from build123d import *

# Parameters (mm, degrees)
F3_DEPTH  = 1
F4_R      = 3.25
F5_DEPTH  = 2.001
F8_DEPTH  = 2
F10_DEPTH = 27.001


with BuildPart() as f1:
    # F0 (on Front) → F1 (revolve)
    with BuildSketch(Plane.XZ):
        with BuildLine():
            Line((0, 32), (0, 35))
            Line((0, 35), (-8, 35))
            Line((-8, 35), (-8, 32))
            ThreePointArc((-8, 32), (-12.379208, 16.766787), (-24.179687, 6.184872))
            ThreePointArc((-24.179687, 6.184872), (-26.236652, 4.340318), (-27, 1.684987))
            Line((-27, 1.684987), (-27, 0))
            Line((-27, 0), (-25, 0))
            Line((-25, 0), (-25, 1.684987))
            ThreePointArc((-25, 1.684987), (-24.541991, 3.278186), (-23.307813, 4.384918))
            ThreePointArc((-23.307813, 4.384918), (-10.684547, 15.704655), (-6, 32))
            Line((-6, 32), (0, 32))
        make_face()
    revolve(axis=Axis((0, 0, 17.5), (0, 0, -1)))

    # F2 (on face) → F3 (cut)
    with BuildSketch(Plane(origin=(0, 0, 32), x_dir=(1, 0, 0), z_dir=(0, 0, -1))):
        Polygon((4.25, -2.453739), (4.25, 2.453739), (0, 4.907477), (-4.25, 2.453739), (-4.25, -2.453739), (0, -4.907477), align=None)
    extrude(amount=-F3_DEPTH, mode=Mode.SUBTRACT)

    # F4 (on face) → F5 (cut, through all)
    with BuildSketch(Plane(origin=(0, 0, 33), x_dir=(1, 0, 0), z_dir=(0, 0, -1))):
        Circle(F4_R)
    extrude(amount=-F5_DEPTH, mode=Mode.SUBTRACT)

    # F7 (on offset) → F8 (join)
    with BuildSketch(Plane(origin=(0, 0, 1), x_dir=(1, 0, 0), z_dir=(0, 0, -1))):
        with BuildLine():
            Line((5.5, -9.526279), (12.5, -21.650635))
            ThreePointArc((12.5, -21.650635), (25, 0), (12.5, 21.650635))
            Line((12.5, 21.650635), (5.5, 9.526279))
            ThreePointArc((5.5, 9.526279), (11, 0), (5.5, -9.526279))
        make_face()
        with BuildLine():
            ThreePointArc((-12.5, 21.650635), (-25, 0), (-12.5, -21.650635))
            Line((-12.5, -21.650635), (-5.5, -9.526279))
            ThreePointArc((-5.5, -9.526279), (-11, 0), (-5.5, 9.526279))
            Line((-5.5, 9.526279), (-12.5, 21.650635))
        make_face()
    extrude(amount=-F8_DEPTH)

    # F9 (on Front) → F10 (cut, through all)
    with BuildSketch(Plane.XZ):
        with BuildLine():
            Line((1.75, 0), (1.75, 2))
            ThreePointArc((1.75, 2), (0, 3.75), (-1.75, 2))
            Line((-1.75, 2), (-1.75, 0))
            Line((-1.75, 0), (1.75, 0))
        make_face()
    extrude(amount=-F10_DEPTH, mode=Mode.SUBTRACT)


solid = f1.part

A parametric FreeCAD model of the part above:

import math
import FreeCAD as App
import Part
import Sketcher
from FreeCAD import Vector
Q = App.Units.Quantity

doc = App.newDocument("Part")
params = doc.addObject("Spreadsheet::Sheet", "Params")
for row, (alias, value) in enumerate([
    ("sketch1_radius", "4.999999 mm"),
    ("sketch1_radius2", "3 mm"),
    ("sketch1_width", "8 mm"),
    ("sketch1_height", "3 mm"),
    ("revolution_angle", "360 deg"),
    ("pocket1_length", "1 mm"),
    ("sketch3_diameter", "6.5 mm"),
    ("sketch4_radius", "25 mm"),
    ("sketch4_radius2", "10.999999 mm"),
    ("pad1_length", "2 mm"),
    ("sketch5_height", "2 mm"),
    ("sketch5_radius", "1.75 mm"),
], start=1):
    params.set(f"A{row}", alias)
    params.set(f"B{row}", "=" + value)
    params.setAlias(f"B{row}", alias)

body = doc.addObject("PartDesign::Body", "Body")

# Sketch on XZ plane
sketch1 = body.newObject("Sketcher::SketchObject", "Sketch")
sketch1.AttachmentSupport = (doc.getObject("XZ_Plane"), [""])
sketch1.MapMode = "FlatFace"
sketch1.addGeometry([
    Part.LineSegment(Vector(0, 32, 0), Vector(0, 35, 0)),  # 0
    Part.LineSegment(Vector(0, 35, 0), Vector(-8, 35, 0)),  # 1
    Part.LineSegment(Vector(-8, 35, 0), Vector(-8, 32, 0)),  # 2
    Part.ArcOfCircle(Part.Circle(Vector(-36.7, 32, 0), Vector(0, 0, 1), 28.7), math.radians(-64), math.radians(0)),  # 3
    Part.ArcOfCircle(Part.Circle(Vector(-22, 1.7, 0), Vector(0, 0, 1), 5), math.radians(116), math.radians(180)),  # 4
    Part.LineSegment(Vector(-27, 1.7, 0), Vector(-27, 0, 0)),  # 5
    Part.LineSegment(Vector(-27, 0, 0), Vector(-25, 0, 0)),  # 6
    Part.LineSegment(Vector(-25, 0, 0), Vector(-25, 1.7, 0)),  # 7
    Part.ArcOfCircle(Part.Circle(Vector(-22, 1.7, 0), Vector(0, 0, 1), 3), math.radians(116), math.radians(180)),  # 8
    Part.ArcOfCircle(Part.Circle(Vector(-36.7, 32, 0), Vector(0, 0, 1), 30.7), math.radians(-64), math.radians(0)),  # 9
    Part.LineSegment(Vector(-6, 32, 0), Vector(0, 32, 0)),  # 10
], False)
sketch1.addConstraint([
    Sketcher.Constraint("Coincident", 0, 2, 1, 1),
    Sketcher.Constraint("Coincident", 1, 2, 2, 1),
    Sketcher.Constraint("Tangent", 2, 2, 3, 2),
    Sketcher.Constraint("Tangent", 3, 1, 4, 1),
    Sketcher.Constraint("Tangent", 4, 2, 5, 1),
    Sketcher.Constraint("Coincident", 5, 2, 6, 1),
    Sketcher.Constraint("Coincident", 6, 2, 7, 1),
    Sketcher.Constraint("Tangent", 7, 2, 8, 2),
    Sketcher.Constraint("Tangent", 8, 1, 9, 1),
    Sketcher.Constraint("Coincident", 9, 2, 10, 1),
    Sketcher.Constraint("Coincident", 10, 2, 0, 1),
    Sketcher.Constraint("Vertical", 0),
    Sketcher.Constraint("Horizontal", 1),
    Sketcher.Constraint("Vertical", 2),
    Sketcher.Constraint("Vertical", 5),
    Sketcher.Constraint("Horizontal", 6),
    Sketcher.Constraint("Vertical", 7),
    Sketcher.Constraint("Horizontal", 10),
    Sketcher.Constraint("Coincident", 8, 3, 4, 3),
    Sketcher.Constraint("Coincident", 9, 3, 3, 3),
    Sketcher.Constraint("PointOnObject", 0, 2, -2),
    Sketcher.Constraint("PointOnObject", 5, 2, -1),
    Sketcher.Constraint("Horizontal", 2, 2, 9, 2),
    Sketcher.Constraint("Radius", 4, 4.999999),
    Sketcher.Constraint("Radius", 8, 3.0),
    Sketcher.Constraint("DistanceX", 1, 2, 1, 1, 8.0),
    Sketcher.Constraint("DistanceY", 0, 1, 0, 2, 3.0),
    Sketcher.Constraint("DistanceY", -1, 1, 3, 3, 32.000001),
    Sketcher.Constraint("DistanceX", 4, 3, -1, 1, 22.000001),
    Sketcher.Constraint("Radius", 3, 28.684212),
])
sketch1.setExpression("Constraints[23]", "Params.sketch1_radius")
sketch1.setExpression("Constraints[24]", "Params.sketch1_radius2")
sketch1.setExpression("Constraints[25]", "Params.sketch1_width")
sketch1.setExpression("Constraints[26]", "Params.sketch1_height")
revolution = body.newObject("PartDesign::Revolution", "Revolution")
revolution.Profile = sketch1
revolution.ReferenceAxis = (sketch1, ["V_Axis"])
revolution.setExpression("Angle", "Params.revolution_angle")

# Sketch on XY plane
sketch2 = body.newObject("Sketcher::SketchObject", "Sketch001")
sketch2.AttachmentSupport = (doc.getObject("XY_Plane"), [""])
sketch2.MapMode = "FlatFace"
sketch2.AttachmentOffset = App.Placement(Vector(0, 0, 32), App.Rotation())
sketch2.addGeometry([
    Part.LineSegment(Vector(4.2, 2.5, 0), Vector(4.2, -2.5, 0)),  # 0
    Part.LineSegment(Vector(4.2, -2.5, 0), Vector(0, -4.9, 0)),  # 1
    Part.LineSegment(Vector(0, -4.9, 0), Vector(-4.2, -2.5, 0)),  # 2
    Part.LineSegment(Vector(-4.2, -2.5, 0), Vector(-4.2, 2.5, 0)),  # 3
    Part.LineSegment(Vector(-4.2, 2.5, 0), Vector(0, 4.9, 0)),  # 4
    Part.LineSegment(Vector(0, 4.9, 0), Vector(4.2, 2.5, 0)),  # 5
], False)
sketch2.addConstraint([
    Sketcher.Constraint("Coincident", 0, 2, 1, 1),
    Sketcher.Constraint("Coincident", 1, 2, 2, 1),
    Sketcher.Constraint("Coincident", 2, 2, 3, 1),
    Sketcher.Constraint("Coincident", 3, 2, 4, 1),
    Sketcher.Constraint("Coincident", 4, 2, 5, 1),
    Sketcher.Constraint("Coincident", 5, 2, 0, 1),
    Sketcher.Constraint("Vertical", 0),
    Sketcher.Constraint("Vertical", 3),
    Sketcher.Constraint("Symmetric", 0, 2, 3, 2, -1, 1),
    Sketcher.Constraint("Symmetric", 1, 2, 4, 2, -1, 1),
    Sketcher.Constraint("PointOnObject", 1, 2, -2),
    Sketcher.Constraint("Parallel", 2, 5),
    Sketcher.Constraint("Horizontal", 0, 2, 2, 2),
    Sketcher.Constraint("Angle", 1, Q("-150.000007 deg")),
    Sketcher.Constraint("DistanceX", 2, 2, 0, 2, 8.5),
    Sketcher.Constraint("DistanceY", 0, 2, 0, 1, 4.907478),
])
pocket1 = body.newObject("PartDesign::Pocket", "Pocket")
pocket1.Profile = sketch2
pocket1.setExpression("Length", "Params.pocket1_length")
pocket1.Reversed = True

# Sketch on XY plane
sketch3 = body.newObject("Sketcher::SketchObject", "Sketch002")
sketch3.AttachmentSupport = (doc.getObject("XY_Plane"), [""])
sketch3.MapMode = "FlatFace"
sketch3.AttachmentOffset = App.Placement(Vector(0, 0, 33), App.Rotation())
sketch3.addGeometry(Part.Circle(Vector(0, 0, 0), Vector(0, 0, 1), 3.2), False)
sketch3.addConstraint([
    Sketcher.Constraint("Coincident", 0, 3, -1, 1),
    Sketcher.Constraint("Diameter", 0, 6.5),
])
sketch3.setExpression("Constraints[1]", "Params.sketch3_diameter")
pocket2 = body.newObject("PartDesign::Pocket", "Pocket001")
pocket2.Profile = sketch3
pocket2.Type = "ThroughAll"
pocket2.Reversed = True

# Sketch on XY plane
sketch4 = body.newObject("Sketcher::SketchObject", "Sketch003")
sketch4.AttachmentSupport = (doc.getObject("XY_Plane"), [""])
sketch4.MapMode = "FlatFace"
sketch4.AttachmentOffset = App.Placement(Vector(0, 0, 1), App.Rotation())
sketch4.addGeometry([
    Part.LineSegment(Vector(6, 10, 0), Vector(12, 22, 0)),  # 0
    Part.ArcOfCircle(Part.Circle(Vector(0, 0, 0), Vector(0, 0, 1), 25), math.radians(-60), math.radians(60)),  # 1
    Part.LineSegment(Vector(12, -22, 0), Vector(6, -10, 0)),  # 2
    Part.ArcOfCircle(Part.Circle(Vector(0, 0, 0), Vector(0, 0, 1), 11), math.radians(-60), math.radians(60)),  # 3
    Part.ArcOfCircle(Part.Circle(Vector(0, 0, 0), Vector(0, 0, 1), 25), math.radians(120), math.radians(240)),  # 4
    Part.LineSegment(Vector(-12, 22, 0), Vector(-6, 10, 0)),  # 5
    Part.ArcOfCircle(Part.Circle(Vector(0, 0, 0), Vector(0, 0, 1), 11), math.radians(120), math.radians(240)),  # 6
    Part.LineSegment(Vector(-6, -10, 0), Vector(-12, -22, 0)),  # 7
], False)
sketch4.addConstraint([
    Sketcher.Constraint("Coincident", 0, 2, 1, 2),
    Sketcher.Constraint("Coincident", 1, 1, 2, 1),
    Sketcher.Constraint("Coincident", 2, 2, 3, 1),
    Sketcher.Constraint("Coincident", 3, 2, 0, 1),
    Sketcher.Constraint("Coincident", 4, 1, 5, 1),
    Sketcher.Constraint("Coincident", 5, 2, 6, 1),
    Sketcher.Constraint("Coincident", 6, 2, 7, 1),
    Sketcher.Constraint("Coincident", 7, 2, 4, 2),
    Sketcher.Constraint("Coincident", 1, 3, -1, 1),
    Sketcher.Constraint("Coincident", 3, 3, -1, 1),
    Sketcher.Constraint("Coincident", 4, 3, -1, 1),
    Sketcher.Constraint("Coincident", 6, 3, -1, 1),
    Sketcher.Constraint("Equal", 1, 4),
    Sketcher.Constraint("Equal", 3, 6),
    Sketcher.Constraint("Parallel", 2, 5),
    Sketcher.Constraint("Parallel", 0, 7),
    Sketcher.Constraint("Horizontal", 0, 2, 4, 1),
    Sketcher.Constraint("Horizontal", 3, 2, 5, 2),
    Sketcher.Constraint("Horizontal", 2, 2, 6, 2),
    Sketcher.Constraint("Vertical", 0, 2, 1, 1),
    Sketcher.Constraint("Radius", 1, 25.0),
    Sketcher.Constraint("Radius", 3, 10.999999),
    Sketcher.Constraint("Angle", 0, Q("60.000001 deg")),
    Sketcher.Constraint("DistanceX", 4, 1, 3, 2, 18.0),
])
sketch4.setExpression("Constraints[20]", "Params.sketch4_radius")
sketch4.setExpression("Constraints[21]", "Params.sketch4_radius2")
pad1 = body.newObject("PartDesign::Pad", "Pad")
pad1.Profile = sketch4
pad1.setExpression("Length", "Params.pad1_length")

# Sketch on XZ plane
sketch5 = body.newObject("Sketcher::SketchObject", "Sketch004")
sketch5.AttachmentSupport = (doc.getObject("XZ_Plane"), [""])
sketch5.MapMode = "FlatFace"
sketch5.addGeometry([
    Part.LineSegment(Vector(1.8, 0, 0), Vector(1.8, 2, 0)),
    Part.ArcOfCircle(Part.Circle(Vector(0, 2, 0), Vector(0, 0, 1), 1.8), math.radians(0), math.radians(180)),
    Part.LineSegment(Vector(-1.8, 2, 0), Vector(-1.8, 0, 0)),
    Part.LineSegment(Vector(-1.8, 0, 0), Vector(1.8, 0, 0)),
], False)
sketch5.addConstraint([
    Sketcher.Constraint("Tangent", 0, 2, 1, 1),
    Sketcher.Constraint("Tangent", 1, 2, 2, 1),
    Sketcher.Constraint("Coincident", 2, 2, 3, 1),
    Sketcher.Constraint("Coincident", 3, 2, 0, 1),
    Sketcher.Constraint("Vertical", 0),
    Sketcher.Constraint("Vertical", 2),
    Sketcher.Constraint("Horizontal", 3),
    Sketcher.Constraint("Symmetric", 2, 2, 3, 2, -1, 1),
    Sketcher.Constraint("DistanceY", 0, 1, 0, 2, 2.0),
    Sketcher.Constraint("Radius", 1, 1.75),
])
sketch5.setExpression("Constraints[8]", "Params.sketch5_height")
sketch5.setExpression("Constraints[9]", "Params.sketch5_radius")
pocket3 = body.newObject("PartDesign::Pocket", "Pocket002")
pocket3.Profile = sketch5
pocket3.Type = "ThroughAll"

doc.recompute()
